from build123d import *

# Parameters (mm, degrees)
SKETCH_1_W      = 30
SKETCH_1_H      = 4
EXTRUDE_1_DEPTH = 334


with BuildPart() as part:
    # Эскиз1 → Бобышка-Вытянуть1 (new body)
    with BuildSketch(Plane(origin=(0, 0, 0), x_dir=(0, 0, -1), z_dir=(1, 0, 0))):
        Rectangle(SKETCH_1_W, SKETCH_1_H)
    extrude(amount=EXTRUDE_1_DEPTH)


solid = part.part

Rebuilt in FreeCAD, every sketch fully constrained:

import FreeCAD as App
import Part
import Sketcher

V = App.Vector
Q = App.Units.Quantity

doc = App.newDocument("Part")
params = doc.addObject("Spreadsheet::Sheet", "Params")
for row, (alias, value) in enumerate([
    ("sketch1_width", "4 mm"),
    ("sketch1_height", "30 mm"),
    ("pad1_length", "334 mm"),
], start=1):
    params.set(f"A{row}", alias)
    params.set(f"B{row}", "=" + value)
    params.setAlias(f"B{row}", alias)

body = doc.addObject("PartDesign::Body", "Body")

sketch1 = body.newObject("Sketcher::SketchObject", "Sketch")
sketch1.AttachmentSupport = (doc.getObject("YZ_Plane"), [""])
sketch1.MapMode = "FlatFace"
sketch1.addGeometry(Part.LineSegment(V(2, 15, 0), V(-2, 15, 0)), False)
sketch1.addGeometry(Part.LineSegment(V(-2, 15, 0), V(-2, -15, 0)), False)
sketch1.addGeometry(Part.LineSegment(V(-2, -15, 0), V(2, -15, 0)), False)
sketch1.addGeometry(Part.LineSegment(V(2, -15, 0), V(2, 15, 0)), False)
sketch1.addConstraint(Sketcher.Constraint("Coincident", 0, 2, 1, 1))
sketch1.addConstraint(Sketcher.Constraint("Coincident", 1, 2, 2, 1))
sketch1.addConstraint(Sketcher.Constraint("Coincident", 2, 2, 3, 1))
sketch1.addConstraint(Sketcher.Constraint("Coincident", 3, 2, 0, 1))
sketch1.addConstraint(Sketcher.Constraint("Horizontal", 0))
sketch1.addConstraint(Sketcher.Constraint("Vertical", 1))
sketch1.addConstraint(Sketcher.Constraint("Horizontal", 2))
sketch1.addConstraint(Sketcher.Constraint("Vertical", 3))
sketch1.addConstraint(Sketcher.Constraint("Symmetric", 0, 2, 2, 2, -1, 1))
sketch1.addConstraint(Sketcher.Constraint("DistanceX", 0, 2, 0, 1, Q("4 mm")))
sketch1.addConstraint(Sketcher.Constraint("DistanceY", 1, 2, 1, 1, Q("30 mm")))
sketch1.setExpression("Constraints[9]", "Params.sketch1_width")
sketch1.setExpression("Constraints[10]", "Params.sketch1_height")
pad1 = body.newObject("PartDesign::Pad", "Pad")
pad1.Profile = sketch1
pad1.setExpression("Length", "Params.pad1_length")

doc.recompute()
